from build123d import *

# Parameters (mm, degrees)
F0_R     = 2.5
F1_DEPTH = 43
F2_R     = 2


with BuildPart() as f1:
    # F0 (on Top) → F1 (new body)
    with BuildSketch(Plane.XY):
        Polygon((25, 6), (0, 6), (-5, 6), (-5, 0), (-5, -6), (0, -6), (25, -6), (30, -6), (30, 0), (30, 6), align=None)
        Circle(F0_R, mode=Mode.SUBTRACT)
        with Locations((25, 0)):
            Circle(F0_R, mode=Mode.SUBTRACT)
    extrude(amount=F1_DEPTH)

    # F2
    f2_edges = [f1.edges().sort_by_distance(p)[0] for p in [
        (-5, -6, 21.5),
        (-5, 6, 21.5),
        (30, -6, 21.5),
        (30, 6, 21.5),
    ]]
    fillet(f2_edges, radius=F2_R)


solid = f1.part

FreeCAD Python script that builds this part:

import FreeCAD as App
import Part
import Sketcher
from FreeCAD import Vector


def edges_at(feature, points):
    """Names of the edges that pass closest to the given points."""
    edges = feature.Shape.Edges
    near = lambda p: min(range(len(edges)), key=lambda i: edges[i].distToShape(Part.Vertex(*p))[0])
    return sorted({f"Edge{near(p) + 1}" for p in points})

doc = App.newDocument("Part")
body = doc.addObject("PartDesign::Body", "Body")

sketch1 = body.newObject("Sketcher::SketchObject", "Sketch")
sketch1.AttachmentSupport = (doc.getObject("XY_Plane"), [""])
sketch1.MapMode = "FlatFace"
sketch1.addGeometry([
    Part.LineSegment(Vector(-5, 6, 0), Vector(-5, -6, 0)),
    Part.LineSegment(Vector(-5, -6, 0), Vector(30, -6, 0)),
    Part.LineSegment(Vector(30, -6, 0), Vector(30, 6, 0)),
    Part.LineSegment(Vector(30, 6, 0), Vector(-5, 6, 0)),
    Part.Circle(Vector(0, 0, 0), Vector(0, 0, 1), 2.5),
    Part.Circle(Vector(25, 0, 0), Vector(0, 0, 1), 2.5),
], False)
sketch1.addConstraint([
    Sketcher.Constraint("Coincident", 0, 2, 1, 1),
    Sketcher.Constraint("Coincident", 1, 2, 2, 1),
    Sketcher.Constraint("Coincident", 2, 2, 3, 1),
    Sketcher.Constraint("Coincident", 3, 2, 0, 1),
    Sketcher.Constraint("Vertical", 0),
    Sketcher.Constraint("Horizontal", 1),
    Sketcher.Constraint("Vertical", 2),
    Sketcher.Constraint("Horizontal", 3),
    Sketcher.Constraint("Coincident", 4, 3, -1, 1),
    Sketcher.Constraint("Equal", 4, 5),
    Sketcher.Constraint("PointOnObject", 5, 3, -1),
    Sketcher.Constraint("Diameter", 4, 5.0),
    Sketcher.Constraint("DistanceX", 1, 1, 1, 2, 35.0),
    Sketcher.Constraint("DistanceY", 0, 2, 0, 1, 12.0),
    Sketcher.Constraint("DistanceX", -1, 1, 5, 3, 25.0),
    Sketcher.Constraint("DistanceX", 0, 2, -1, 1, 5.0),
    Sketcher.Constraint("DistanceY", 0, 2, -1, 1, 6.0),
])
pad1 = body.newObject("PartDesign::Pad", "Pad")
pad1.Profile = sketch1
pad1.Length = 43
doc.recompute()

fillet = body.newObject("PartDesign::Fillet", "Fillet")
fillet.Base = (pad1, edges_at(pad1, [
    (-5, -6, 21.5),
    (-5, 6, 21.5),
    (30, -6, 21.5),
    (30, 6, 21.5),
]))
fillet.Radius = 2

doc.recompute()
